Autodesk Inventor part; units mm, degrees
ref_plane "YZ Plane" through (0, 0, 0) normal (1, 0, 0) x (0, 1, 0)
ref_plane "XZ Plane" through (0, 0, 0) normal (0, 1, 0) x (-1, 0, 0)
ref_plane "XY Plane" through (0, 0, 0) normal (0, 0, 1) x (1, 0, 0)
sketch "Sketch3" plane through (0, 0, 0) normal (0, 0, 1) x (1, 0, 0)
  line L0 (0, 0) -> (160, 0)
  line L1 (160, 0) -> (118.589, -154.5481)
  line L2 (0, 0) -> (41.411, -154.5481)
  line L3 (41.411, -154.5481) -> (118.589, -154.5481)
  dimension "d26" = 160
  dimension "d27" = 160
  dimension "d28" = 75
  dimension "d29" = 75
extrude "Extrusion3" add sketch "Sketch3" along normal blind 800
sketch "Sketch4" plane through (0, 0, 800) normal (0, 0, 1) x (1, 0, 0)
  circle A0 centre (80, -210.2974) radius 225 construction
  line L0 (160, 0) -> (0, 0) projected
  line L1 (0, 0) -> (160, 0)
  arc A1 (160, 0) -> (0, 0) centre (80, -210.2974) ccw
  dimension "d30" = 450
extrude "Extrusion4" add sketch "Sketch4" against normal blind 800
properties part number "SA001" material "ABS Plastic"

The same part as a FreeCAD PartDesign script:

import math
import FreeCAD as App
import Part
import Sketcher

V = App.Vector
Q = App.Units.Quantity

doc = App.newDocument("Part")
body = doc.addObject("PartDesign::Body", "Body")

# Sketch on XY plane
sketch1 = body.newObject("Sketcher::SketchObject", "Sketch")
sketch1.AttachmentSupport = (doc.getObject("XY_Plane"), [""])
sketch1.MapMode = "FlatFace"
sketch1.addGeometry(Part.LineSegment(V(160, 0, 0), V(0, 0, 0)), False)
sketch1.addGeometry(Part.LineSegment(V(0, 0, 0), V(41, -155, 0)), False)
sketch1.addGeometry(Part.LineSegment(V(41, -155, 0), V(119, -155, 0)), False)
sketch1.addGeometry(Part.LineSegment(V(119, -155, 0), V(160, 0, 0)), False)
sketch1.addConstraint(Sketcher.Constraint("Coincident", 0, 2, 1, 1))
sketch1.addConstraint(Sketcher.Constraint("Coincident", 1, 2, 2, 1))
sketch1.addConstraint(Sketcher.Constraint("Coincident", 2, 2, 3, 1))
sketch1.addConstraint(Sketcher.Constraint("Coincident", 3, 2, 0, 1))
sketch1.addConstraint(Sketcher.Constraint("Horizontal", 0))
sketch1.addConstraint(Sketcher.Constraint("Horizontal", 2))
sketch1.addConstraint(Sketcher.Constraint("Coincident", 0, 2, -1, 1))
sketch1.addConstraint(Sketcher.Constraint("Equal", 1, 3))
sketch1.addConstraint(Sketcher.Constraint("DistanceX", 0, 2, 0, 1, Q("160 mm")))
sketch1.addConstraint(Sketcher.Constraint("Angle", 1, Q("-75 deg")))
sketch1.addConstraint(Sketcher.Constraint("Distance", 1, Q("160 mm")))
pad1 = body.newObject("PartDesign::Pad", "Pad")
pad1.Profile = sketch1
pad1.Length = 800

# Sketch on XY plane
sketch2 = body.newObject("Sketcher::SketchObject", "Sketch001")
sketch2.AttachmentSupport = (doc.getObject("XY_Plane"), [""])
sketch2.MapMode = "FlatFace"
sketch2.AttachmentOffset = App.Placement(V(0, 0, 800), App.Rotation())
sketch2.addGeometry(Part.LineSegment(V(0, 0, 0), V(160, 0, 0)), False)
sketch2.addGeometry(Part.ArcOfCircle(Part.Circle(V(80, -210, 0), V(0, 0, 1), 225), math.radians(69), math.radians(111)), False)
sketch2.addConstraint(Sketcher.Constraint("Coincident", 0, 1, 1, 2))
sketch2.addConstraint(Sketcher.Constraint("Coincident", 1, 1, 0, 2))
sketch2.addConstraint(Sketcher.Constraint("Horizontal", 0))
sketch2.addConstraint(Sketcher.Constraint("Coincident", 0, 1, -1, 1))
sketch2.addConstraint(Sketcher.Constraint("Radius", 1, Q("225 mm")))
sketch2.addConstraint(Sketcher.Constraint("DistanceX", 0, 1, 0, 2, Q("160 mm")))
pad2 = body.newObject("PartDesign::Pad", "Pad001")
pad2.Profile = sketch2
pad2.Length = 800
pad2.Reversed = True

doc.recompute()
